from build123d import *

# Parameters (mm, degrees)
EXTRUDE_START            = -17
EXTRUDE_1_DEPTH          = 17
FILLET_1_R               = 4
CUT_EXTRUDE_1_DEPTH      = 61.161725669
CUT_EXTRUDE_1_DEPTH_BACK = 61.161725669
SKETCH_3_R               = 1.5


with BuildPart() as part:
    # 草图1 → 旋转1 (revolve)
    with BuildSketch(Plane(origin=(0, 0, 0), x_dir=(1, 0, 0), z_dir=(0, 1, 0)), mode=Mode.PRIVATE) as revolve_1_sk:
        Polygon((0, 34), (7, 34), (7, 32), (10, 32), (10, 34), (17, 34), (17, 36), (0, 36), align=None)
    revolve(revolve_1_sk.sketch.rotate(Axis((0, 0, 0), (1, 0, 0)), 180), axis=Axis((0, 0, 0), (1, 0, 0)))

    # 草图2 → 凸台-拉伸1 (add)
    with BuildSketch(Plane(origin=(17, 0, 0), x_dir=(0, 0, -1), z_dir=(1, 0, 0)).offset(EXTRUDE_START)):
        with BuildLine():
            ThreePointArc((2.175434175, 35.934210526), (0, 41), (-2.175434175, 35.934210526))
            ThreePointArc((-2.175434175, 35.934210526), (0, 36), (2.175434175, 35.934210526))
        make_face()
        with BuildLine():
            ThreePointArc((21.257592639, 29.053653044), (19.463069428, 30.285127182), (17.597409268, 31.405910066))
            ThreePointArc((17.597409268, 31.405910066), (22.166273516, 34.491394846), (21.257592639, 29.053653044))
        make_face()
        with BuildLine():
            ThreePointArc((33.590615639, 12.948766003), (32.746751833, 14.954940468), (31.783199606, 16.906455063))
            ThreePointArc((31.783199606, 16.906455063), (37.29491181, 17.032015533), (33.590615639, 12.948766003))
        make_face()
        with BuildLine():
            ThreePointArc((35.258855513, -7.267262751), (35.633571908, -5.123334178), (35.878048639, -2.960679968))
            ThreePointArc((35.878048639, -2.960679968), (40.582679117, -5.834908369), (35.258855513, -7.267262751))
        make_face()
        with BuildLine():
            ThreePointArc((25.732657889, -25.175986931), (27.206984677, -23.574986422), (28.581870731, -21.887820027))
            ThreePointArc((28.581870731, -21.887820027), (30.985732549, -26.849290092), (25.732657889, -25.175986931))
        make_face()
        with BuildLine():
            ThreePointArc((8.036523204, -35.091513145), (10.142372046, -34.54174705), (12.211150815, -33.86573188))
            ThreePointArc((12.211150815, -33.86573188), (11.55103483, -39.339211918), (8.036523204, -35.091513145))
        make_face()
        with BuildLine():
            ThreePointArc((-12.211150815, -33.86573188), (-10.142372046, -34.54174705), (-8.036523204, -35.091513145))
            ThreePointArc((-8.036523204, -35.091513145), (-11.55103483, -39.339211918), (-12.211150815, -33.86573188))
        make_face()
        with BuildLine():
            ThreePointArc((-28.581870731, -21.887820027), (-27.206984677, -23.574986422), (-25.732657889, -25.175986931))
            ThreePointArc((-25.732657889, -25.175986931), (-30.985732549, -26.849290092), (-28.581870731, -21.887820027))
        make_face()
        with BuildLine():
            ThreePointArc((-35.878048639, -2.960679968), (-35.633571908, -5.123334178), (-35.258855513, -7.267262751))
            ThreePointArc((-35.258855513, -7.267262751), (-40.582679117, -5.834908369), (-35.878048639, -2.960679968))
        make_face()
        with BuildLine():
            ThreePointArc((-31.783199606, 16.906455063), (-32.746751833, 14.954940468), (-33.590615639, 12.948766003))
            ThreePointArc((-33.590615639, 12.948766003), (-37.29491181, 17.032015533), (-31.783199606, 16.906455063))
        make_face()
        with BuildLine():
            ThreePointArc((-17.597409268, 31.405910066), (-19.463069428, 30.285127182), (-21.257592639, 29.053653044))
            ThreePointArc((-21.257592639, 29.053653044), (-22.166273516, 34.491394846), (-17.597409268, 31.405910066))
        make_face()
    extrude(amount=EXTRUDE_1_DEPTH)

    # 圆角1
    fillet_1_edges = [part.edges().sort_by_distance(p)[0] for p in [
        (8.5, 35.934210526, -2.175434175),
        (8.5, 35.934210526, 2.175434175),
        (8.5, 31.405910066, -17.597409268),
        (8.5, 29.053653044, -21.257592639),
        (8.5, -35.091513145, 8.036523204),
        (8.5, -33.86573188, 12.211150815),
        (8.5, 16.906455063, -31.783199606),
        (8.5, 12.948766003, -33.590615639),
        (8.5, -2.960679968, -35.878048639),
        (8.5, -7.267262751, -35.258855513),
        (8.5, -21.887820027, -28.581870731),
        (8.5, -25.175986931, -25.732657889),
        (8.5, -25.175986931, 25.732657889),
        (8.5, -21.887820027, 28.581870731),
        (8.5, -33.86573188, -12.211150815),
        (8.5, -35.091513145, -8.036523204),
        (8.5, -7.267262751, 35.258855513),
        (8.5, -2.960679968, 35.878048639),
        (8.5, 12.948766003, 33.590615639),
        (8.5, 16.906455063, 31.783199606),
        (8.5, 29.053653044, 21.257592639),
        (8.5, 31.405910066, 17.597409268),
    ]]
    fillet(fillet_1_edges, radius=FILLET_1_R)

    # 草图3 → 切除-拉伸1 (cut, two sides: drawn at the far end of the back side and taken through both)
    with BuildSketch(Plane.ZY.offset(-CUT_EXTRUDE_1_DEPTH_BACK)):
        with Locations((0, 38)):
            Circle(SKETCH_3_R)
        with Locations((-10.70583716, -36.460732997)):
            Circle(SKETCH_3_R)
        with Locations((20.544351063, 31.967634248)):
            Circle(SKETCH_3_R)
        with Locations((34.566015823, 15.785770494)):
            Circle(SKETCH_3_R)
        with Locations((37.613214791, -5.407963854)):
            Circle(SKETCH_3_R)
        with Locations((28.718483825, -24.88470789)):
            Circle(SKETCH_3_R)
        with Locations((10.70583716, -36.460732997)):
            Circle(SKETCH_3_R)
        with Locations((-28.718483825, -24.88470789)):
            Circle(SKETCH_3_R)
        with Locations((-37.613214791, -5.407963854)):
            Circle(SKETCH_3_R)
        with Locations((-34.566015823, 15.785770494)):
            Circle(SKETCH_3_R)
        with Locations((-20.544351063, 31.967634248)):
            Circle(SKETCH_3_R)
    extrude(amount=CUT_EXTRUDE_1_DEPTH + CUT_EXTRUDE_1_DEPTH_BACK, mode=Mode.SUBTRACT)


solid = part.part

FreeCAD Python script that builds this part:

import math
import FreeCAD as App
import Part
import Sketcher
Q = App.Units.Quantity


def edges_at(feature, points):
    """Names of the edges that pass closest to the given points."""
    edges = feature.Shape.Edges
    near = lambda p: min(range(len(edges)), key=lambda i: edges[i].distToShape(Part.Vertex(*p))[0])
    return sorted({f"Edge{near(p) + 1}" for p in points})


def add_polygon(sketch, points):
    """Adds a closed chain of lines whose ends are joined by coincident constraints."""
    first, n = sketch.GeometryCount, len(points)
    for a, b in zip(points, points[1:] + points[:1]):
        sketch.addGeometry(Part.LineSegment(App.Vector(*a, 0), App.Vector(*b, 0)), False)
    for i in range(n):
        sketch.addConstraint(Sketcher.Constraint("Coincident", first + i, 2, first + (i + 1) % n, 1))

doc = App.newDocument("Part")
body = doc.addObject("PartDesign::Body", "Body")

# Sketch on XZ plane
sketch1 = body.newObject("Sketcher::SketchObject", "Sketch")
sketch1.AttachmentSupport = (doc.getObject("XZ_Plane"), [""])
sketch1.MapMode = "FlatFace"
add_polygon(sketch1, [(0, -34), (7, -34), (7, -32), (10, -32), (10, -34), (17, -34), (17, -36), (0, -36)])  # lines 0-7
sketch1.addConstraint([
    Sketcher.Constraint("Horizontal", 0),
    Sketcher.Constraint("Vertical", 1),
    Sketcher.Constraint("Horizontal", 2),
    Sketcher.Constraint("Vertical", 3),
    Sketcher.Constraint("Horizontal", 4),
    Sketcher.Constraint("Vertical", 5),
    Sketcher.Constraint("Horizontal", 6),
    Sketcher.Constraint("Vertical", 7),
    Sketcher.Constraint("PointOnObject", 6, 2, -2),
    Sketcher.Constraint("Horizontal", 0, 2, 3, 2),
    Sketcher.Constraint("Equal", 0, 4),
    Sketcher.Constraint("Equal", 3, 5),
    Sketcher.Constraint("DistanceX", 0, 1, 0, 2, Q("7 mm")),
    Sketcher.Constraint("DistanceX", 2, 1, 2, 2, Q("3 mm")),
    Sketcher.Constraint("DistanceY", 1, 1, 1, 2, Q("2 mm")),
    Sketcher.Constraint("DistanceY", 0, 2, -1, 1, Q("34 mm")),
])
revolution = body.newObject("PartDesign::Revolution", "Revolution")
revolution.Profile = sketch1
revolution.ReferenceAxis = (sketch1, ["H_Axis"])
revolution.Angle = 360

# Sketch on YZ plane
sketch2 = body.newObject("Sketcher::SketchObject", "Sketch001")
sketch2.AttachmentSupport = (doc.getObject("YZ_Plane"), [""])
sketch2.MapMode = "FlatFace"
sketch2.addGeometry([
    Part.ArcOfCircle(Part.Circle(App.Vector(38, 0, 0), App.Vector(0, 0, 1), 3), math.radians(-134), math.radians(134)),  # 0
    Part.ArcOfCircle(Part.Circle(App.Vector(0, 0, 0), App.Vector(0, 0, 1), 36), math.radians(-3.46), math.radians(3.46)),  # 1
    Part.ArcOfCircle(Part.Circle(App.Vector(0, 0, 0), App.Vector(0, 0, 1), 36), math.radians(-36.19), math.radians(-29.26)),  # 2
    Part.ArcOfCircle(Part.Circle(App.Vector(32, -20.5, 0), App.Vector(0, 0, 1), 3), math.radians(-166), math.radians(101)),  # 3
    Part.ArcOfCircle(Part.Circle(App.Vector(0, 0, 0), App.Vector(0, 0, 1), 36), math.radians(-68.92), math.radians(-61.99)),  # 4
    Part.ArcOfCircle(Part.Circle(App.Vector(15.8, -34.6, 0), App.Vector(0, 0, 1), 3), math.radians(161), math.radians(428)),  # 5
    Part.ArcOfCircle(Part.Circle(App.Vector(0, 0, 0), App.Vector(0, 0, 1), 36), math.radians(-101.65), math.radians(-94.72)),  # 6
    Part.ArcOfCircle(Part.Circle(App.Vector(-5.4, -37.6, 0), App.Vector(0, 0, 1), 3), math.radians(128), math.radians(395)),  # 7
    Part.ArcOfCircle(Part.Circle(App.Vector(0, 0, 0), App.Vector(0, 0, 1), 36), math.radians(-134.37), math.radians(-127.44)),  # 8
    Part.ArcOfCircle(Part.Circle(App.Vector(-24.9, -28.7, 0), App.Vector(0, 0, 1), 3), math.radians(96), math.radians(363)),  # 9
    Part.ArcOfCircle(Part.Circle(App.Vector(0, 0, 0), App.Vector(0, 0, 1), 36), math.radians(-167.1), math.radians(-160.17)),  # 10
    Part.ArcOfCircle(Part.Circle(App.Vector(-36.5, -10.7, 0), App.Vector(0, 0, 1), 3), math.radians(63), math.radians(330)),  # 11
    Part.ArcOfCircle(Part.Circle(App.Vector(0, 0, 0), App.Vector(0, 0, 1), 36), math.radians(160.17), math.radians(167.1)),  # 12
    Part.ArcOfCircle(Part.Circle(App.Vector(-36.5, 10.7, 0), App.Vector(0, 0, 1), 3), math.radians(30), math.radians(297)),  # 13
    Part.ArcOfCircle(Part.Circle(App.Vector(0, 0, 0), App.Vector(0, 0, 1), 36), math.radians(127.44), math.radians(134.37)),  # 14
    Part.ArcOfCircle(Part.Circle(App.Vector(-24.9, 28.7, 0), App.Vector(0, 0, 1), 3), math.radians(-3), math.radians(264)),  # 15
    Part.ArcOfCircle(Part.Circle(App.Vector(0, 0, 0), App.Vector(0, 0, 1), 36), math.radians(94.72), math.radians(101.65)),  # 16
    Part.ArcOfCircle(Part.Circle(App.Vector(-5.4, 37.6, 0), App.Vector(0, 0, 1), 3), math.radians(-35), math.radians(232)),  # 17
    Part.ArcOfCircle(Part.Circle(App.Vector(0, 0, 0), App.Vector(0, 0, 1), 36), math.radians(61.99), math.radians(68.92)),  # 18
    Part.ArcOfCircle(Part.Circle(App.Vector(15.8, 34.6, 0), App.Vector(0, 0, 1), 3), math.radians(-68), math.radians(199)),  # 19
    Part.ArcOfCircle(Part.Circle(App.Vector(0, 0, 0), App.Vector(0, 0, 1), 36), math.radians(29.26), math.radians(36.19)),  # 20
    Part.ArcOfCircle(Part.Circle(App.Vector(32, 20.5, 0), App.Vector(0, 0, 1), 3), math.radians(-101), math.radians(166)),  # 21
], False)
sketch2.addConstraint([
    Sketcher.Constraint("Coincident", 0, 1, 1, 1),
    Sketcher.Constraint("Coincident", 1, 2, 0, 2),
    Sketcher.Constraint("Coincident", 2, 1, 3, 1),
    Sketcher.Constraint("Coincident", 3, 2, 2, 2),
    Sketcher.Constraint("Coincident", 4, 1, 5, 1),
    Sketcher.Constraint("Coincident", 5, 2, 4, 2),
    Sketcher.Constraint("Coincident", 6, 1, 7, 1),
    Sketcher.Constraint("Coincident", 7, 2, 6, 2),
    Sketcher.Constraint("Coincident", 8, 1, 9, 1),
    Sketcher.Constraint("Coincident", 9, 2, 8, 2),
    Sketcher.Constraint("Coincident", 10, 1, 11, 1),
    Sketcher.Constraint("Coincident", 11, 2, 10, 2),
    Sketcher.Constraint("Coincident", 12, 1, 13, 1),
    Sketcher.Constraint("Coincident", 13, 2, 12, 2),
    Sketcher.Constraint("Coincident", 14, 1, 15, 1),
    Sketcher.Constraint("Coincident", 15, 2, 14, 2),
    Sketcher.Constraint("Coincident", 16, 1, 17, 1),
    Sketcher.Constraint("Coincident", 17, 2, 16, 2),
    Sketcher.Constraint("Coincident", 18, 1, 19, 1),
    Sketcher.Constraint("Coincident", 19, 2, 18, 2),
    Sketcher.Constraint("Coincident", 20, 1, 21, 1),
    Sketcher.Constraint("Coincident", 21, 2, 20, 2),
    Sketcher.Constraint("Coincident", 1, 3, -1, 1),
    Sketcher.Constraint("Coincident", 2, 3, -1, 1),
    Sketcher.Constraint("Coincident", 4, 3, -1, 1),
    Sketcher.Constraint("Coincident", 6, 3, -1, 1),
    Sketcher.Constraint("Coincident", 8, 3, -1, 1),
    Sketcher.Constraint("Coincident", 10, 3, -1, 1),
    Sketcher.Constraint("Coincident", 12, 3, -1, 1),
    Sketcher.Constraint("Coincident", 14, 3, -1, 1),
    Sketcher.Constraint("Coincident", 16, 3, -1, 1),
    Sketcher.Constraint("Coincident", 18, 3, -1, 1),
    Sketcher.Constraint("Coincident", 20, 3, -1, 1),
    Sketcher.Constraint("Equal", 1, 2),
    Sketcher.Constraint("Equal", 0, 3),
    Sketcher.Constraint("Equal", 2, 4),
    Sketcher.Constraint("Equal", 3, 5),
    Sketcher.Constraint("Equal", 4, 6),
    Sketcher.Constraint("Equal", 5, 7),
    Sketcher.Constraint("Equal", 6, 8),
    Sketcher.Constraint("Equal", 7, 9),
    Sketcher.Constraint("Equal", 8, 10),
    Sketcher.Constraint("Equal", 9, 11),
    Sketcher.Constraint("Equal", 10, 12),
    Sketcher.Constraint("Equal", 11, 13),
    Sketcher.Constraint("Equal", 12, 14),
    Sketcher.Constraint("Equal", 13, 15),
    Sketcher.Constraint("Equal", 14, 16),
    Sketcher.Constraint("Equal", 15, 17),
    Sketcher.Constraint("Equal", 16, 18),
    Sketcher.Constraint("Equal", 17, 19),
    Sketcher.Constraint("Equal", 18, 20),
    Sketcher.Constraint("Equal", 19, 21),
    Sketcher.Constraint("Symmetric", 11, 3, 13, 3, -1),
    Sketcher.Constraint("Symmetric", 9, 3, 15, 3, -1),
    Sketcher.Constraint("Symmetric", 7, 3, 17, 3, -1),
    Sketcher.Constraint("Symmetric", 5, 3, 19, 3, -1),
    Sketcher.Constraint("Symmetric", 3, 3, 21, 3, -1),
    Sketcher.Constraint("PointOnObject", 0, 3, -1),
    Sketcher.Constraint("Radius", 0, Q("3 mm")),
    Sketcher.Constraint("Radius", 1, Q("36 mm")),
    Sketcher.Constraint("DistanceX", -1, 1, 0, 3, Q("38 mm")),
    Sketcher.Constraint("DistanceX", 11, 3, 11, 2, Q("2.595001 mm")),
    Sketcher.Constraint("DistanceY", 5, 2, -1, 1, Q("31.7832 mm")),
    Sketcher.Constraint("DistanceY", 7, 3, 5, 3, Q("3.047199 mm")),
    Sketcher.Constraint("DistanceX", 3, 2, 0, 1, Q("4.5283 mm")),
    Sketcher.Constraint("DistanceY", 5, 3, 4, 1, Q("0.9754 mm")),
    Sketcher.Constraint("DistanceX", 6, 1, 7, 3, Q("1.859299 mm")),
    Sketcher.Constraint("DistanceY", 11, 2, 12, 1, Q("24.422302 mm")),
    Sketcher.Constraint("DistanceY", 3, 3, -1, 1, Q("20.544351 mm")),
    Sketcher.Constraint("DistanceX", 9, 2, -1, 1, Q("21.88782 mm")),
    Sketcher.Constraint("DistanceY", 7, 3, 9, 3, Q("8.894731 mm")),
])
pad1 = body.newObject("PartDesign::Pad", "Pad")
pad1.Profile = sketch2
pad1.Length = 17
doc.recompute()

fillet = body.newObject("PartDesign::Fillet", "Fillet")
fillet.Base = (pad1, edges_at(pad1, [
    (8.5, 35.934, -2.175),
    (8.5, 35.934, 2.175),
    (8.5, 31.406, -17.597),
    (8.5, 29.054, -21.258),
    (8.5, -35.092, 8.037),
    (8.5, -33.866, 12.211),
    (8.5, 16.906, -31.783),
    (8.5, 12.949, -33.591),
    (8.5, -2.961, -35.878),
    (8.5, -7.267, -35.259),
    (8.5, -21.888, -28.582),
    (8.5, -25.176, -25.733),
    (8.5, -25.176, 25.733),
    (8.5, -21.888, 28.582),
    (8.5, -33.866, -12.211),
    (8.5, -35.092, -8.037),
    (8.5, -7.267, 35.259),
    (8.5, -2.961, 35.878),
    (8.5, 12.949, 33.591),
    (8.5, 16.906, 31.783),
    (8.5, 29.054, 21.258),
    (8.5, 31.406, 17.597),
]))
fillet.Radius = 4

# Sketch on YZ plane
sketch3 = body.newObject("Sketcher::SketchObject", "Sketch002")
sketch3.AttachmentSupport = (doc.getObject("YZ_Plane"), [""])
sketch3.MapMode = "FlatFace"
sketch3.addGeometry([
    Part.Circle(App.Vector(38, 0, 0), App.Vector(0, 0, 1), 1.5),  # 0
    Part.Circle(App.Vector(-36.5, -10.7, 0), App.Vector(0, 0, 1), 1.5),  # 1
    Part.Circle(App.Vector(32, 20.5, 0), App.Vector(0, 0, 1), 1.5),  # 2
    Part.Circle(App.Vector(15.8, 34.6, 0), App.Vector(0, 0, 1), 1.5),  # 3
    Part.Circle(App.Vector(-5.4, 37.6, 0), App.Vector(0, 0, 1), 1.5),  # 4
    Part.Circle(App.Vector(-24.9, 28.7, 0), App.Vector(0, 0, 1), 1.5),  # 5
    Part.Circle(App.Vector(-36.5, 10.7, 0), App.Vector(0, 0, 1), 1.5),  # 6
    Part.Circle(App.Vector(-24.9, -28.7, 0), App.Vector(0, 0, 1), 1.5),  # 7
    Part.Circle(App.Vector(-5.4, -37.6, 0), App.Vector(0, 0, 1), 1.5),  # 8
    Part.Circle(App.Vector(15.8, -34.6, 0), App.Vector(0, 0, 1), 1.5),  # 9
    Part.Circle(App.Vector(32, -20.5, 0), App.Vector(0, 0, 1), 1.5),  # 10
], False)
sketch3.addConstraint([
    Sketcher.Constraint("Equal", 0, 1),
    Sketcher.Constraint("Equal", 1, 2),
    Sketcher.Constraint("Equal", 2, 3),
    Sketcher.Constraint("Equal", 3, 4),
    Sketcher.Constraint("Equal", 4, 5),
    Sketcher.Constraint("Equal", 5, 6),
    Sketcher.Constraint("Equal", 6, 7),
    Sketcher.Constraint("Equal", 7, 8),
    Sketcher.Constraint("Equal", 8, 9),
    Sketcher.Constraint("Equal", 9, 10),
    Sketcher.Constraint("Symmetric", 1, 3, 6, 3, -1),
    Sketcher.Constraint("Symmetric", 5, 3, 7, 3, -1),
    Sketcher.Constraint("Symmetric", 4, 3, 8, 3, -1),
    Sketcher.Constraint("Symmetric", 3, 3, 9, 3, -1),
    Sketcher.Constraint("Symmetric", 2, 3, 10, 3, -1),
    Sketcher.Constraint("PointOnObject", 0, 3, -1),
    Sketcher.Constraint("Diameter", 0, Q("3 mm")),
    Sketcher.Constraint("DistanceX", -1, 1, 0, 3, Q("38 mm")),
    Sketcher.Constraint("DistanceY", 3, 3, 4, 3, Q("3.047199 mm")),
    Sketcher.Constraint("DistanceX", 4, 3, 2, 3, Q("37.375598 mm")),
    Sketcher.Constraint("DistanceY", 7, 3, 4, 3, Q("66.331699 mm")),
    Sketcher.Constraint("DistanceY", -1, 1, 2, 3, Q("20.544351 mm")),
    Sketcher.Constraint("DistanceX", -1, 1, 3, 3, Q("15.78577 mm")),
    Sketcher.Constraint("DistanceY", 1, 3, 2, 3, Q("31.250188 mm")),
    Sketcher.Constraint("DistanceX", 1, 3, 4, 3, Q("31.052769 mm")),
    Sketcher.Constraint("DistanceY", 1, 3, 4, 3, Q("48.319052 mm")),
    Sketcher.Constraint("DistanceX", 5, 3, 3, 3, Q("40.670478 mm")),
    Sketcher.Constraint("DistanceX", 1, 3, -1, 1, Q("36.460733 mm")),
])
pocket1 = body.newObject("PartDesign::Pocket", "Pocket")
pocket1.Profile = sketch3
pocket1.Type = "ThroughAll"
pocket1.Midplane = True

doc.recompute()
